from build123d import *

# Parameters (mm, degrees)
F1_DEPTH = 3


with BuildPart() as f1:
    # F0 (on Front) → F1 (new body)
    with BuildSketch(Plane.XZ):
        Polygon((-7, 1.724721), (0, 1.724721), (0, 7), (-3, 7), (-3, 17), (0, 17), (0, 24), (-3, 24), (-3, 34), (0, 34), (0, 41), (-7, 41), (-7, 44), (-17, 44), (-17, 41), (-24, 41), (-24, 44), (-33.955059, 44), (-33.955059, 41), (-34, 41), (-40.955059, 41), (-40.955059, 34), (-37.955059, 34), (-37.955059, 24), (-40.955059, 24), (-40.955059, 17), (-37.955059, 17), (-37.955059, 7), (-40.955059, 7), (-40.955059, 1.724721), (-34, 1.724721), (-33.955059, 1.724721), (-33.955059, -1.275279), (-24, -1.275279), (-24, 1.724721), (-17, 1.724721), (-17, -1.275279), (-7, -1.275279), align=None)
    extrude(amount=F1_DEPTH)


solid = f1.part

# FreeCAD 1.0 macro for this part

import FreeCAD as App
import Part
import Sketcher

V = App.Vector
Q = App.Units.Quantity

doc = App.newDocument("Part")
body = doc.addObject("PartDesign::Body", "Body")

sketch1 = body.newObject("Sketcher::SketchObject", "Sketch")
sketch1.AttachmentSupport = (doc.getObject("XZ_Plane"), [""])
sketch1.MapMode = "FlatFace"
sketch1.addGeometry([
    Part.LineSegment(V(-7, 1.7, 0), V(0, 1.7, 0)),
    Part.LineSegment(V(0, 1.7, 0), V(0, 7, 0)),
    Part.LineSegment(V(0, 7, 0), V(-3, 7, 0)),
    Part.LineSegment(V(-3, 7, 0), V(-3, 17, 0)),
    Part.LineSegment(V(-3, 17, 0), V(0, 17, 0)),
    Part.LineSegment(V(0, 17, 0), V(0, 24, 0)),
    Part.LineSegment(V(0, 24, 0), V(-3, 24, 0)),
    Part.LineSegment(V(-3, 24, 0), V(-3, 34, 0)),
    Part.LineSegment(V(-3, 34, 0), V(0, 34, 0)),
    Part.LineSegment(V(0, 34, 0), V(0, 41, 0)),
    Part.LineSegment(V(0, 41, 0), V(-7, 41, 0)),
    Part.LineSegment(V(-7, 41, 0), V(-7, 44, 0)),
    Part.LineSegment(V(-7, 44, 0), V(-17, 44, 0)),
    Part.LineSegment(V(-17, 44, 0), V(-17, 41, 0)),
    Part.LineSegment(V(-17, 41, 0), V(-24, 41, 0)),
    Part.LineSegment(V(-24, 41, 0), V(-24, 44, 0)),
    Part.LineSegment(V(-24, 44, 0), V(-34, 44, 0)),
    Part.LineSegment(V(-34, 44, 0), V(-34, 41, 0)),
    Part.LineSegment(V(-34, 41, 0), V(-41, 41, 0)),
    Part.LineSegment(V(-41, 41, 0), V(-41, 34, 0)),
    Part.LineSegment(V(-41, 34, 0), V(-38, 34, 0)),
    Part.LineSegment(V(-38, 34, 0), V(-38, 24, 0)),
    Part.LineSegment(V(-38, 24, 0), V(-41, 24, 0)),
    Part.LineSegment(V(-41, 24, 0), V(-41, 17, 0)),
    Part.LineSegment(V(-41, 17, 0), V(-38, 17, 0)),
    Part.LineSegment(V(-38, 17, 0), V(-38, 7, 0)),
    Part.LineSegment(V(-38, 7, 0), V(-41, 7, 0)),
    Part.LineSegment(V(-41, 7, 0), V(-41, 1.7, 0)),
    Part.LineSegment(V(-41, 1.7, 0), V(-34, 1.7, 0)),
    Part.LineSegment(V(-34, 1.7, 0), V(-34, -1.3, 0)),
    Part.LineSegment(V(-34, -1.3, 0), V(-24, -1.3, 0)),
    Part.LineSegment(V(-24, -1.3, 0), V(-24, 1.7, 0)),
    Part.LineSegment(V(-24, 1.7, 0), V(-17, 1.7, 0)),
    Part.LineSegment(V(-17, 1.7, 0), V(-17, -1.3, 0)),
    Part.LineSegment(V(-17, -1.3, 0), V(-7, -1.3, 0)),
    Part.LineSegment(V(-7, -1.3, 0), V(-7, 1.7, 0)),
], False)
sketch1.addConstraint([
    Sketcher.Constraint("Coincident", 0, 2, 1, 1),
    Sketcher.Constraint("Coincident", 1, 2, 2, 1),
    Sketcher.Constraint("Coincident", 2, 2, 3, 1),
    Sketcher.Constraint("Coincident", 3, 2, 4, 1),
    Sketcher.Constraint("Coincident", 4, 2, 5, 1),
    Sketcher.Constraint("Coincident", 5, 2, 6, 1),
    Sketcher.Constraint("Coincident", 6, 2, 7, 1),
    Sketcher.Constraint("Coincident", 7, 2, 8, 1),
    Sketcher.Constraint("Coincident", 8, 2, 9, 1),
    Sketcher.Constraint("Coincident", 9, 2, 10, 1),
    Sketcher.Constraint("Coincident", 10, 2, 11, 1),
    Sketcher.Constraint("Coincident", 11, 2, 12, 1),
    Sketcher.Constraint("Coincident", 12, 2, 13, 1),
    Sketcher.Constraint("Coincident", 13, 2, 14, 1),
    Sketcher.Constraint("Coincident", 14, 2, 15, 1),
    Sketcher.Constraint("Coincident", 15, 2, 16, 1),
    Sketcher.Constraint("Coincident", 16, 2, 17, 1),
    Sketcher.Constraint("Coincident", 17, 2, 18, 1),
    Sketcher.Constraint("Coincident", 18, 2, 19, 1),
    Sketcher.Constraint("Coincident", 19, 2, 20, 1),
    Sketcher.Constraint("Coincident", 20, 2, 21, 1),
    Sketcher.Constraint("Coincident", 21, 2, 22, 1),
    Sketcher.Constraint("Coincident", 22, 2, 23, 1),
    Sketcher.Constraint("Coincident", 23, 2, 24, 1),
    Sketcher.Constraint("Coincident", 24, 2, 25, 1),
    Sketcher.Constraint("Coincident", 25, 2, 26, 1),
    Sketcher.Constraint("Coincident", 26, 2, 27, 1),
    Sketcher.Constraint("Coincident", 27, 2, 28, 1),
    Sketcher.Constraint("Coincident", 28, 2, 29, 1),
    Sketcher.Constraint("Coincident", 29, 2, 30, 1),
    Sketcher.Constraint("Coincident", 30, 2, 31, 1),
    Sketcher.Constraint("Coincident", 31, 2, 32, 1),
    Sketcher.Constraint("Coincident", 32, 2, 33, 1),
    Sketcher.Constraint("Coincident", 33, 2, 34, 1),
    Sketcher.Constraint("Coincident", 34, 2, 35, 1),
    Sketcher.Constraint("Coincident", 35, 2, 0, 1),
    Sketcher.Constraint("Horizontal", 0),
    Sketcher.Constraint("Vertical", 1),
    Sketcher.Constraint("Horizontal", 2),
    Sketcher.Constraint("Vertical", 3),
    Sketcher.Constraint("Horizontal", 4),
    Sketcher.Constraint("Vertical", 5),
    Sketcher.Constraint("Horizontal", 6),
    Sketcher.Constraint("Vertical", 7),
    Sketcher.Constraint("Horizontal", 8),
    Sketcher.Constraint("Vertical", 9),
    Sketcher.Constraint("Horizontal", 10),
    Sketcher.Constraint("Vertical", 11),
    Sketcher.Constraint("Horizontal", 12),
    Sketcher.Constraint("Vertical", 13),
    Sketcher.Constraint("Horizontal", 14),
    Sketcher.Constraint("Vertical", 15),
    Sketcher.Constraint("Horizontal", 16),
    Sketcher.Constraint("Vertical", 17),
    Sketcher.Constraint("Horizontal", 18),
    Sketcher.Constraint("Vertical", 19),
    Sketcher.Constraint("Horizontal", 20),
    Sketcher.Constraint("Vertical", 21),
    Sketcher.Constraint("Horizontal", 22),
    Sketcher.Constraint("Vertical", 23),
    Sketcher.Constraint("Horizontal", 24),
    Sketcher.Constraint("Vertical", 25),
    Sketcher.Constraint("Horizontal", 26),
    Sketcher.Constraint("Vertical", 27),
    Sketcher.Constraint("Horizontal", 28),
    Sketcher.Constraint("Vertical", 29),
    Sketcher.Constraint("Horizontal", 30),
    Sketcher.Constraint("Vertical", 31),
    Sketcher.Constraint("Horizontal", 32),
    Sketcher.Constraint("Vertical", 33),
    Sketcher.Constraint("Horizontal", 34),
    Sketcher.Constraint("Vertical", 35),
    Sketcher.Constraint("PointOnObject", 0, 2, -2),
    Sketcher.Constraint("PointOnObject", 4, 2, -2),
    Sketcher.Constraint("PointOnObject", 8, 2, -2),
    Sketcher.Constraint("Horizontal", 10, 2, 13, 2),
    Sketcher.Constraint("Horizontal", 12, 2, 15, 2),
    Sketcher.Constraint("Horizontal", 14, 2, 17, 2),
    Sketcher.Constraint("Horizontal", 8, 2, 19, 2),
    Sketcher.Constraint("Horizontal", 6, 2, 21, 2),
    Sketcher.Constraint("Horizontal", 4, 2, 23, 2),
    Sketcher.Constraint("Horizontal", 2, 2, 25, 2),
    Sketcher.Constraint("Horizontal", 0, 2, 27, 2),
    Sketcher.Constraint("Horizontal", 28, 2, 31, 2),
    Sketcher.Constraint("Horizontal", 30, 2, 33, 2),
    Sketcher.Constraint("Vertical", 3, 2, 6, 2),
    Sketcher.Constraint("Vertical", 19, 2, 22, 2),
    Sketcher.Constraint("Vertical", 21, 2, 24, 2),
    Sketcher.Constraint("Vertical", 23, 2, 26, 2),
    Sketcher.Constraint("Vertical", 17, 2, 28, 2),
    Sketcher.Constraint("Vertical", 15, 2, 30, 2),
    Sketcher.Constraint("Vertical", 13, 2, 32, 2),
    Sketcher.Constraint("Vertical", 11, 2, 34, 2),
    Sketcher.Constraint("Equal", 10, 14),
    Sketcher.Constraint("Equal", 14, 18),
    Sketcher.Constraint("Equal", 8, 20),
    Sketcher.Constraint("Equal", 34, 3),
    Sketcher.Constraint("Equal", 32, 5),
    Sketcher.Constraint("Equal", 3, 7),
    Sketcher.Constraint("Equal", 5, 9),
    Sketcher.Constraint("Equal", 26, 11),
    Sketcher.Constraint("Equal", 17, 29),
    Sketcher.Constraint("DistanceX", 0, 1, 0, 2, Q("7 mm")),
    Sketcher.Constraint("DistanceX", 2, 2, 2, 1, Q("3 mm")),
    Sketcher.Constraint("DistanceX", 12, 2, 12, 1, Q("10 mm")),
    Sketcher.Constraint("DistanceY", -1, 1, 1, 2, Q("7 mm")),
    Sketcher.Constraint("DistanceX", 16, 2, 16, 1, Q("9.955059 mm")),
    Sketcher.Constraint("DistanceY", 1, 1, 1, 2, Q("5.275279 mm")),
])
pad1 = body.newObject("PartDesign::Pad", "Pad")
pad1.Profile = sketch1
pad1.Length = 3

doc.recompute()
